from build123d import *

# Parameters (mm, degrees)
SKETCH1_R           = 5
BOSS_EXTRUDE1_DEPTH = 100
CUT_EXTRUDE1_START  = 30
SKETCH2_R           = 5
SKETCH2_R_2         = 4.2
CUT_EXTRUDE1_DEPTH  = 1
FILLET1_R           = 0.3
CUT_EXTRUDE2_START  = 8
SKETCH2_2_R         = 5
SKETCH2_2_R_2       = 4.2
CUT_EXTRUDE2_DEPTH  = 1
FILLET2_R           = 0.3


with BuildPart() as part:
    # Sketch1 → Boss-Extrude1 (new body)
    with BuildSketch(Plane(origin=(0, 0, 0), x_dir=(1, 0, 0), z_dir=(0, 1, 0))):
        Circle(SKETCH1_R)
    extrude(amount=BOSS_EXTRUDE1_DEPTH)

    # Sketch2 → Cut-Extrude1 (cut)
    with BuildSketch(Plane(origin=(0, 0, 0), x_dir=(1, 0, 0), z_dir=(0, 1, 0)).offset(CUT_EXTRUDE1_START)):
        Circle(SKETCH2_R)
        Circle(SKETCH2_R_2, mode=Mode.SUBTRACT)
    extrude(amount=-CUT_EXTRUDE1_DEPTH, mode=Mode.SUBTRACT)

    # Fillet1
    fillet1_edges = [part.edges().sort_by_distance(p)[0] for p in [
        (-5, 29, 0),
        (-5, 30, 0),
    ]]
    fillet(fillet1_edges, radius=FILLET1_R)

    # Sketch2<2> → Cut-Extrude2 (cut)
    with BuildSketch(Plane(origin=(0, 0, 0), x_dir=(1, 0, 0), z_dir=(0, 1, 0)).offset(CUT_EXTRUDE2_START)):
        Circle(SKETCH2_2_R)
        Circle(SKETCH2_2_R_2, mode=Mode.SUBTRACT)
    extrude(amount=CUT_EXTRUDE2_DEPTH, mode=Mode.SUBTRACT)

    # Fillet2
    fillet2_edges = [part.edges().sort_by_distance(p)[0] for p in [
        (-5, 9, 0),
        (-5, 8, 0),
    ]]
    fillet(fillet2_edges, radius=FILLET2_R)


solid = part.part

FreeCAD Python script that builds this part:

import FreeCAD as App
import Part
import Sketcher
Q = App.Units.Quantity


def edges_at(feature, points):
    """Names of the edges that pass closest to the given points."""
    edges = feature.Shape.Edges
    near = lambda p: min(range(len(edges)), key=lambda i: edges[i].distToShape(Part.Vertex(*p))[0])
    return sorted({f"Edge{near(p) + 1}" for p in points})

doc = App.newDocument("Part")
params = doc.addObject("Spreadsheet::Sheet", "Params")
for row, (alias, value) in enumerate([
    ("sketch1_diameter", "10 mm"),
    ("pad1_length", "100 mm"),
    ("sketch2_diameter", "10 mm"),
    ("sketch2_diameter2", "8.4 mm"),
    ("pocket1_length", "1 mm"),
    ("fillet_radius", "0.3 mm"),
    ("sketch3_diameter", "10 mm"),
    ("sketch3_diameter2", "8.4 mm"),
    ("pocket2_length", "1 mm"),
    ("fillet2_radius", "0.3 mm"),
], start=1):
    params.set(f"A{row}", alias)
    params.set(f"B{row}", "=" + value)
    params.setAlias(f"B{row}", alias)

body = doc.addObject("PartDesign::Body", "Body")

# Sketch on XZ plane
sketch1 = body.newObject("Sketcher::SketchObject", "Sketch")
sketch1.AttachmentSupport = (doc.getObject("XZ_Plane"), [""])
sketch1.MapMode = "FlatFace"
sketch1.addGeometry(Part.Circle(App.Vector(0, 0, 0), App.Vector(0, 0, 1), 5), False)
sketch1.addConstraint(Sketcher.Constraint("Coincident", 0, 3, -1, 1))
sketch1.addConstraint(Sketcher.Constraint("Diameter", 0, Q("10 mm")))
sketch1.setExpression("Constraints[1]", "Params.sketch1_diameter")
pad1 = body.newObject("PartDesign::Pad", "Pad")
pad1.Profile = sketch1
pad1.setExpression("Length", "Params.pad1_length")
pad1.Reversed = True

# Sketch on XZ plane
sketch2 = body.newObject("Sketcher::SketchObject", "Sketch001")
sketch2.AttachmentSupport = (doc.getObject("XZ_Plane"), [""])
sketch2.MapMode = "FlatFace"
sketch2.AttachmentOffset = App.Placement(App.Vector(0, 0, -30), App.Rotation())
sketch2.addGeometry(Part.Circle(App.Vector(0, 0, 0), App.Vector(0, 0, 1), 5), False)
sketch2.addGeometry(Part.Circle(App.Vector(0, 0, 0), App.Vector(0, 0, 1), 4.2), False)
sketch2.addConstraint(Sketcher.Constraint("Coincident", 0, 3, -1, 1))
sketch2.addConstraint(Sketcher.Constraint("Coincident", 1, 3, -1, 1))
sketch2.addConstraint(Sketcher.Constraint("Diameter", 0, Q("10 mm")))
sketch2.addConstraint(Sketcher.Constraint("Diameter", 1, Q("8.4 mm")))
sketch2.setExpression("Constraints[2]", "Params.sketch2_diameter")
sketch2.setExpression("Constraints[3]", "Params.sketch2_diameter2")
pocket1 = body.newObject("PartDesign::Pocket", "Pocket")
pocket1.Profile = sketch2
pocket1.setExpression("Length", "Params.pocket1_length")
pocket1.Reversed = True
doc.recompute()

fillet = body.newObject("PartDesign::Fillet", "Fillet")
fillet.Base = (pocket1, edges_at(pocket1, [(-5, 29, 0), (-5, 30, 0)]))
fillet.setExpression("Radius", "Params.fillet_radius")

# Sketch on XZ plane
sketch3 = body.newObject("Sketcher::SketchObject", "Sketch002")
sketch3.AttachmentSupport = (doc.getObject("XZ_Plane"), [""])
sketch3.MapMode = "FlatFace"
sketch3.AttachmentOffset = App.Placement(App.Vector(0, 0, -8), App.Rotation())
sketch3.addGeometry(Part.Circle(App.Vector(0, 0, 0), App.Vector(0, 0, 1), 5), False)
sketch3.addGeometry(Part.Circle(App.Vector(0, 0, 0), App.Vector(0, 0, 1), 4.2), False)
sketch3.addConstraint(Sketcher.Constraint("Coincident", 0, 3, -1, 1))
sketch3.addConstraint(Sketcher.Constraint("Coincident", 1, 3, -1, 1))
sketch3.addConstraint(Sketcher.Constraint("Diameter", 0, Q("10 mm")))
sketch3.addConstraint(Sketcher.Constraint("Diameter", 1, Q("8.4 mm")))
sketch3.setExpression("Constraints[2]", "Params.sketch3_diameter")
sketch3.setExpression("Constraints[3]", "Params.sketch3_diameter2")
pocket2 = body.newObject("PartDesign::Pocket", "Pocket001")
pocket2.Profile = sketch3
pocket2.setExpression("Length", "Params.pocket2_length")
doc.recompute()

fillet2 = body.newObject("PartDesign::Fillet", "Fillet001")
fillet2.Base = (pocket2, edges_at(pocket2, [(-5, 9, 0), (-5, 8, 0)]))
fillet2.setExpression("Radius", "Params.fillet2_radius")

doc.recompute()
